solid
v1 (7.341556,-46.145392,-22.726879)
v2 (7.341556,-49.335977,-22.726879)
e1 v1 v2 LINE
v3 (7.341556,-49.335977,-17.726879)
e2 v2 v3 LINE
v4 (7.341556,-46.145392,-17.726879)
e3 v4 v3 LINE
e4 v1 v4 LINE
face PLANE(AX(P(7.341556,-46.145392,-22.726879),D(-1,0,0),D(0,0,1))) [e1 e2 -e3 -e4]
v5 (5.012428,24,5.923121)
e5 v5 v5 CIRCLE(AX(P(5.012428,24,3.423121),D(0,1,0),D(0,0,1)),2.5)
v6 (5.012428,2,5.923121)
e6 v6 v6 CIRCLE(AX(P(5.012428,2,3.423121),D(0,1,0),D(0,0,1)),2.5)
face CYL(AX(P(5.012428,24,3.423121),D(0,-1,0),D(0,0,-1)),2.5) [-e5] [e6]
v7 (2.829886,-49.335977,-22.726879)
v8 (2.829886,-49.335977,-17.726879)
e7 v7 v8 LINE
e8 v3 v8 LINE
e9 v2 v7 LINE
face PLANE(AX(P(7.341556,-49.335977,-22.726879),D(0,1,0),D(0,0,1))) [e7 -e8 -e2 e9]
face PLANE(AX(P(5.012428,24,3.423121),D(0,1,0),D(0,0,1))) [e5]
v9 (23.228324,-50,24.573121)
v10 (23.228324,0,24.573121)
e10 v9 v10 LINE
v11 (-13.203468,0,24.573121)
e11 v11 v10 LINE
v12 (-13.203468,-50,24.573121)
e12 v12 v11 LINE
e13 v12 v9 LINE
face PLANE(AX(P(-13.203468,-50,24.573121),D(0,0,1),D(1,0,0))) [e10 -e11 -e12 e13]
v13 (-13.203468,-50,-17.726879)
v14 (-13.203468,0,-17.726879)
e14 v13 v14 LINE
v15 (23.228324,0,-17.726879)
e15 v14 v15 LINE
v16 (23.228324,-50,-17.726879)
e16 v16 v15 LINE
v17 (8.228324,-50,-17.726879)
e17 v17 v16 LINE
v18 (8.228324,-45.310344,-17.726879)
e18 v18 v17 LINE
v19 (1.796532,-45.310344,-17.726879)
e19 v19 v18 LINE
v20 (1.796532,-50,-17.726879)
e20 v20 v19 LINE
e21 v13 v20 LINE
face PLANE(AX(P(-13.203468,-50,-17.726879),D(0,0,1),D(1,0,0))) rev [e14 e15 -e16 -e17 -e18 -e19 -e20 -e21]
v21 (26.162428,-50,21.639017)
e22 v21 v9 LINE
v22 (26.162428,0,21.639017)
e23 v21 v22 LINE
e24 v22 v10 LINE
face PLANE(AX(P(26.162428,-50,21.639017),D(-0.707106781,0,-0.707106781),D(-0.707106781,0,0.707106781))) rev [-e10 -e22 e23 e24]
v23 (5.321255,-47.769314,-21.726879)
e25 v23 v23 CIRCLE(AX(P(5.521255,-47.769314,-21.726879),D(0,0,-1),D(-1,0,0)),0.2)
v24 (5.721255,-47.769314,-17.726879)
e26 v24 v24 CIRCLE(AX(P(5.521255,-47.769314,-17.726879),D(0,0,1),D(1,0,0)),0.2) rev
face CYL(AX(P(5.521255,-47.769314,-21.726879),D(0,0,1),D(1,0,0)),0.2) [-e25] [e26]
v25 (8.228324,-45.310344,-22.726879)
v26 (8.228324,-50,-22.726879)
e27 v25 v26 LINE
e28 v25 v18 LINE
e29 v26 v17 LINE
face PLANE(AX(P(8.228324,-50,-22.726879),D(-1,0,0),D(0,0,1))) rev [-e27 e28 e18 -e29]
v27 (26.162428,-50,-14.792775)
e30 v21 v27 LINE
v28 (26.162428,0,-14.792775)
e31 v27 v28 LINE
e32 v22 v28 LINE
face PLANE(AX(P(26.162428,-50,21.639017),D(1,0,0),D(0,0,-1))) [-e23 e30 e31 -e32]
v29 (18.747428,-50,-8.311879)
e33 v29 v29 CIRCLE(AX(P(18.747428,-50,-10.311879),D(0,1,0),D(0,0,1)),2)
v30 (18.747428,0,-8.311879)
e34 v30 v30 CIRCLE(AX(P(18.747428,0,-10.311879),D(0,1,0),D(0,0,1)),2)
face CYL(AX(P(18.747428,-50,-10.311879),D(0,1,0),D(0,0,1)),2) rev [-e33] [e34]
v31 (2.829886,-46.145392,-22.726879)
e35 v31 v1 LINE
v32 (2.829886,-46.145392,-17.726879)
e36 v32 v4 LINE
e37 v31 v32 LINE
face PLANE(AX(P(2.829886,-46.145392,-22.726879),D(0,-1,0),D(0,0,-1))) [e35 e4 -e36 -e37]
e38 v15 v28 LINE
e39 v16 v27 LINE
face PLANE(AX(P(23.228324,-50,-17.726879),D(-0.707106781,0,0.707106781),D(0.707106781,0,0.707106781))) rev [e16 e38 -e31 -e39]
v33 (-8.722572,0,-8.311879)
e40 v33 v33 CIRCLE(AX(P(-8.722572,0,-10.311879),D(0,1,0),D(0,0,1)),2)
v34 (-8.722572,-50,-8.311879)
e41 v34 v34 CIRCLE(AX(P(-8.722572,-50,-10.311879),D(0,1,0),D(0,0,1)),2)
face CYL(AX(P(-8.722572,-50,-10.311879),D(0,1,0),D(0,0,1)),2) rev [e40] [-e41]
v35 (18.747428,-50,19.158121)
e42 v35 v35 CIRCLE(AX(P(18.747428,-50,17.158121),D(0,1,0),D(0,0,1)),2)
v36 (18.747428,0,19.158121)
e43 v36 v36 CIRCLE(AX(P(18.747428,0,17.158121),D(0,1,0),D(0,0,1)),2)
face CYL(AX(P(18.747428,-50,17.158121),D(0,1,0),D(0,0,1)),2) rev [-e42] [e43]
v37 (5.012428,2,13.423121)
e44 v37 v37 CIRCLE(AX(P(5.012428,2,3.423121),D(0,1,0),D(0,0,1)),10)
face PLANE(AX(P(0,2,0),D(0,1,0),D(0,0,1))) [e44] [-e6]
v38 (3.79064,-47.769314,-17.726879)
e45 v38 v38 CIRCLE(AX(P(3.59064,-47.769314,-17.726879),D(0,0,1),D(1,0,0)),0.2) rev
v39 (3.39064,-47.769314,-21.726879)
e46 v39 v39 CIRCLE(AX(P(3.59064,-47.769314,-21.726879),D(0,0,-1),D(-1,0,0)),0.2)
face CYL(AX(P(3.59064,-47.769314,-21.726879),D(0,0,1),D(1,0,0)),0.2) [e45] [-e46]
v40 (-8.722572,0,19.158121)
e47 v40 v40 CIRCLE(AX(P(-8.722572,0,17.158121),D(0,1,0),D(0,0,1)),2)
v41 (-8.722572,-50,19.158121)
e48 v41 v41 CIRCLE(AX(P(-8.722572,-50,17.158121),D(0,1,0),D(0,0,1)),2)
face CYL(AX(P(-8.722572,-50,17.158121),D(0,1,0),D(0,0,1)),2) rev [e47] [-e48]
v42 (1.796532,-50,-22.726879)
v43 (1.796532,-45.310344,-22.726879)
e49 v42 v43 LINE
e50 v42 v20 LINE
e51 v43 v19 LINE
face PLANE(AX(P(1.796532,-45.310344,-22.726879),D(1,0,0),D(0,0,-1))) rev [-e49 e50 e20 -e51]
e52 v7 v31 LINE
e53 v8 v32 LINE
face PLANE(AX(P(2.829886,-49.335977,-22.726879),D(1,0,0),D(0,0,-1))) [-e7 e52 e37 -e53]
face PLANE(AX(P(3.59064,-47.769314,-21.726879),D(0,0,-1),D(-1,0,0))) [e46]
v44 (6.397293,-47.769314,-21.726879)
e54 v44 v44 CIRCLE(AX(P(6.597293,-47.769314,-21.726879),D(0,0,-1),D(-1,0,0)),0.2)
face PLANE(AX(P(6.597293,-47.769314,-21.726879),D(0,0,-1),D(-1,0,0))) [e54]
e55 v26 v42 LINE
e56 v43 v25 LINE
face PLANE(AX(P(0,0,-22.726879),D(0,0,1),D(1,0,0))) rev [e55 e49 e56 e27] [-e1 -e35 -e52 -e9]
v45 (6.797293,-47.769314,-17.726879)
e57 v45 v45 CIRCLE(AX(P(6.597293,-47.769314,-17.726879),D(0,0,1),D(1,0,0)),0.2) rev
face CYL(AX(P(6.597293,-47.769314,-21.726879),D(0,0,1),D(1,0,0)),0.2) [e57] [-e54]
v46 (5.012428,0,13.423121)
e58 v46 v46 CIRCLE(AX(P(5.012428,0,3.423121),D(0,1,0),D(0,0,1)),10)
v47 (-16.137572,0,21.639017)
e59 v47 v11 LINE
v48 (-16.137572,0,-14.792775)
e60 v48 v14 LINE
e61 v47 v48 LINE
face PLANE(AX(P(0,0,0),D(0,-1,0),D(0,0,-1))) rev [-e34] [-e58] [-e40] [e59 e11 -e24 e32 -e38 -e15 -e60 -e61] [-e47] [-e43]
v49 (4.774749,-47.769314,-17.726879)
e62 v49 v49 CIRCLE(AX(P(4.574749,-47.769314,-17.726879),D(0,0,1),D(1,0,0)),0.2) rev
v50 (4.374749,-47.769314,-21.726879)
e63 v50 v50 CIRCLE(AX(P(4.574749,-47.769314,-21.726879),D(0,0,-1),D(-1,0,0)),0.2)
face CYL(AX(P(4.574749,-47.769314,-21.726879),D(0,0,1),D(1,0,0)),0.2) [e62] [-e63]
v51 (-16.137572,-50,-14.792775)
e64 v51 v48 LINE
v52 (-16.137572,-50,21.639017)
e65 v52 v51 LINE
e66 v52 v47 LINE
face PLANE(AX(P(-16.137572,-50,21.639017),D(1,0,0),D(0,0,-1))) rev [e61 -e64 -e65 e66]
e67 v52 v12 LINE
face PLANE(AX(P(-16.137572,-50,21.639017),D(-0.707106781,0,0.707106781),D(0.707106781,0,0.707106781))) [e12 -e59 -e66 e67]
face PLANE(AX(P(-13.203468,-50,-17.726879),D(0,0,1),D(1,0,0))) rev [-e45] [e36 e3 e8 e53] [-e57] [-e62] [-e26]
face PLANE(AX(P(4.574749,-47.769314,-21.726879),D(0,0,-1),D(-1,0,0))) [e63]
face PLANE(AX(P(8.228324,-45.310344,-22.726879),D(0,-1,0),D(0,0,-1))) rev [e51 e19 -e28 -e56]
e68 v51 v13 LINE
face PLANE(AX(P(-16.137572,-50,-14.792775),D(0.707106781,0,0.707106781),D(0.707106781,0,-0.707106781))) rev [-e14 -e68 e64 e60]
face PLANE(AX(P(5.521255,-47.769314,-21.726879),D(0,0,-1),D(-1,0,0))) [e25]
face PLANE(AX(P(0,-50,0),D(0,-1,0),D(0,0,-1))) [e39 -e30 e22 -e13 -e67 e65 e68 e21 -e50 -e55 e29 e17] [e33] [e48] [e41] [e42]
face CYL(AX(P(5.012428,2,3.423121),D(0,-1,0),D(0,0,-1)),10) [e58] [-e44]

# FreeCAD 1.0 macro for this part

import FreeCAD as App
import Part
import Sketcher

V = App.Vector
Q = App.Units.Quantity

doc = App.newDocument("Part")
body = doc.addObject("PartDesign::Body", "Body")

# Sketch on XZ plane
sketch1 = doc.addObject("Sketcher::SketchObject", "Sketch")
body.addObject(sketch1)
sketch1.AttachmentSupport = (doc.XZ_Plane, [""])
sketch1.MapMode = "FlatFace"
sketch1.addGeometry(Part.Circle(V(5.012428, 3.423121, 0), V(0, 0, 1), 10), False)
sketch1.addConstraint(Sketcher.Constraint("Diameter", 0, Q("20 mm")))
sketch1.addConstraint(Sketcher.Constraint("DistanceY", -1, 1, 0, 3, Q("3.423121 mm")))
sketch1.addConstraint(Sketcher.Constraint("DistanceX", -1, 1, 0, 3, Q("5.012428 mm")))
pad1 = doc.addObject("PartDesign::Pad", "Pad")
body.addObject(pad1)
pad1.Profile = sketch1
pad1.Length = 2
pad1.Reversed = True

# Sketch on XZ plane
sketch2 = doc.addObject("Sketcher::SketchObject", "Sketch001")
body.addObject(sketch2)
sketch2.AttachmentSupport = (doc.XZ_Plane, [""])
sketch2.MapMode = "FlatFace"
sketch2.addGeometry(Part.LineSegment(V(-16.137572, -14.792775, 0), V(-16.137572, 21.639017, 0)), False)
sketch2.addGeometry(Part.LineSegment(V(-16.137572, 21.639017, 0), V(-13.203468, 24.573121, 0)), False)
sketch2.addGeometry(Part.LineSegment(V(-13.203468, 24.573121, 0), V(23.228324, 24.573121, 0)), False)
sketch2.addGeometry(Part.LineSegment(V(23.228324, 24.573121, 0), V(26.162428, 21.639017, 0)), False)
sketch2.addGeometry(Part.LineSegment(V(26.162428, 21.639017, 0), V(26.162428, -14.792775, 0)), False)
sketch2.addGeometry(Part.LineSegment(V(26.162428, -14.792775, 0), V(23.228324, -17.726879, 0)), False)
sketch2.addGeometry(Part.LineSegment(V(23.228324, -17.726879, 0), V(-13.203468, -17.726879, 0)), False)
sketch2.addGeometry(Part.LineSegment(V(-13.203468, -17.726879, 0), V(-16.137572, -14.792775, 0)), False)
sketch2.addGeometry(Part.Circle(V(18.747428, 17.158121, 0), V(0, 0, 1), 2), False)
sketch2.addGeometry(Part.Circle(V(-8.722572, 17.158121, 0), V(0, 0, 1), 2), False)
sketch2.addGeometry(Part.Circle(V(18.747428, -10.311879, 0), V(0, 0, 1), 2), False)
sketch2.addGeometry(Part.Circle(V(-8.722572, -10.311879, 0), V(0, 0, 1), 2), False)
sketch2.addConstraint(Sketcher.Constraint("Coincident", 0, 2, 1, 1))
sketch2.addConstraint(Sketcher.Constraint("Coincident", 1, 2, 2, 1))
sketch2.addConstraint(Sketcher.Constraint("Coincident", 2, 2, 3, 1))
sketch2.addConstraint(Sketcher.Constraint("Coincident", 3, 2, 4, 1))
sketch2.addConstraint(Sketcher.Constraint("Coincident", 4, 2, 5, 1))
sketch2.addConstraint(Sketcher.Constraint("Coincident", 5, 2, 6, 1))
sketch2.addConstraint(Sketcher.Constraint("Coincident", 6, 2, 7, 1))
sketch2.addConstraint(Sketcher.Constraint("Coincident", 7, 2, 0, 1))
sketch2.addConstraint(Sketcher.Constraint("Vertical", 0))
sketch2.addConstraint(Sketcher.Constraint("Horizontal", 2))
sketch2.addConstraint(Sketcher.Constraint("Vertical", 4))
sketch2.addConstraint(Sketcher.Constraint("Horizontal", 6))
sketch2.addConstraint(Sketcher.Constraint("Equal", 8, 9))
sketch2.addConstraint(Sketcher.Constraint("Equal", 9, 10))
sketch2.addConstraint(Sketcher.Constraint("Equal", 10, 11))
sketch2.addConstraint(Sketcher.Constraint("Perpendicular", 1, 3))
sketch2.addConstraint(Sketcher.Constraint("Perpendicular", 3, 5))
sketch2.addConstraint(Sketcher.Constraint("Perpendicular", 5, 7))
sketch2.addConstraint(Sketcher.Constraint("Horizontal", 8, 3, 9, 3))
sketch2.addConstraint(Sketcher.Constraint("Horizontal", 10, 3, 11, 3))
sketch2.addConstraint(Sketcher.Constraint("Horizontal", 0, 2, 3, 2))
sketch2.addConstraint(Sketcher.Constraint("Horizontal", 4, 2, 7, 2))
sketch2.addConstraint(Sketcher.Constraint("Vertical", 8, 3, 10, 3))
sketch2.addConstraint(Sketcher.Constraint("Vertical", 9, 3, 11, 3))
sketch2.addConstraint(Sketcher.Constraint("Vertical", 2, 2, 5, 2))
sketch2.addConstraint(Sketcher.Constraint("Vertical", 1, 2, 6, 2))
sketch2.addConstraint(Sketcher.Constraint("Equal", 6, 0))
sketch2.addConstraint(Sketcher.Constraint("Diameter", 8, Q("4 mm")))
sketch2.addConstraint(Sketcher.Constraint("DistanceX", 9, 3, 8, 3, Q("27.47 mm")))
sketch2.addConstraint(Sketcher.Constraint("DistanceY", 10, 3, 8, 3, Q("27.47 mm")))
sketch2.addConstraint(Sketcher.Constraint("DistanceX", 0, 2, 9, 3, Q("7.415 mm")))
sketch2.addConstraint(Sketcher.Constraint("DistanceY", 9, 3, 1, 2, Q("7.415 mm")))
sketch2.addConstraint(Sketcher.Constraint("DistanceX", 8, 3, 3, 2, Q("7.415 mm")))
sketch2.addConstraint(Sketcher.Constraint("DistanceX", 2, 1, 2, 2, Q("36.431792 mm")))
sketch2.addConstraint(Sketcher.Constraint("DistanceY", -1, 1, 8, 3, Q("17.158121 mm")))
sketch2.addConstraint(Sketcher.Constraint("DistanceX", 1, 2, -1, 1, Q("13.203468 mm")))
pad2 = doc.addObject("PartDesign::Pad", "Pad001")
body.addObject(pad2)
pad2.Profile = sketch2
pad2.Length = 50

# Sketch on XY plane
sketch3 = doc.addObject("Sketcher::SketchObject", "Sketch002")
body.addObject(sketch3)
sketch3.AttachmentSupport = (doc.XY_Plane, [""])
sketch3.MapMode = "FlatFace"
sketch3.AttachmentOffset = App.Placement(V(0, 0, -17.726879), App.Rotation())
sketch3.addGeometry(Part.LineSegment(V(8.228324, -45.310344, 0), V(8.228324, -50, 0)), False)
sketch3.addGeometry(Part.LineSegment(V(8.228324, -50, 0), V(1.796532, -50, 0)), False)
sketch3.addGeometry(Part.LineSegment(V(1.796532, -50, 0), V(1.796532, -45.310344, 0)), False)
sketch3.addGeometry(Part.LineSegment(V(1.796532, -45.310344, 0), V(8.228324, -45.310344, 0)), False)
sketch3.addGeometry(Part.LineSegment(V(2.829886, -49.335977, 0), V(7.341556, -49.335977, 0)), False)
sketch3.addGeometry(Part.LineSegment(V(7.341556, -49.335977, 0), V(7.341556, -46.145392, 0)), False)
sketch3.addGeometry(Part.LineSegment(V(7.341556, -46.145392, 0), V(2.829886, -46.145392, 0)), False)
sketch3.addGeometry(Part.LineSegment(V(2.829886, -46.145392, 0), V(2.829886, -49.335977, 0)), False)
sketch3.addConstraint(Sketcher.Constraint("Coincident", 0, 2, 1, 1))
sketch3.addConstraint(Sketcher.Constraint("Coincident", 1, 2, 2, 1))
sketch3.addConstraint(Sketcher.Constraint("Coincident", 2, 2, 3, 1))
sketch3.addConstraint(Sketcher.Constraint("Coincident", 3, 2, 0, 1))
sketch3.addConstraint(Sketcher.Constraint("Coincident", 4, 2, 5, 1))
sketch3.addConstraint(Sketcher.Constraint("Coincident", 5, 2, 6, 1))
sketch3.addConstraint(Sketcher.Constraint("Coincident", 6, 2, 7, 1))
sketch3.addConstraint(Sketcher.Constraint("Coincident", 7, 2, 4, 1))
sketch3.addConstraint(Sketcher.Constraint("Vertical", 0))
sketch3.addConstraint(Sketcher.Constraint("Horizontal", 1))
sketch3.addConstraint(Sketcher.Constraint("Vertical", 2))
sketch3.addConstraint(Sketcher.Constraint("Horizontal", 3))
sketch3.addConstraint(Sketcher.Constraint("Horizontal", 4))
sketch3.addConstraint(Sketcher.Constraint("Vertical", 5))
sketch3.addConstraint(Sketcher.Constraint("Horizontal", 6))
sketch3.addConstraint(Sketcher.Constraint("Vertical", 7))
sketch3.addConstraint(Sketcher.Constraint("DistanceY", 0, 2, -1, 1, Q("50 mm")))
sketch3.addConstraint(Sketcher.Constraint("DistanceX", 1, 2, 1, 1, Q("6.431792 mm")))
sketch3.addConstraint(Sketcher.Constraint("DistanceX", 4, 1, 4, 2, Q("4.51167 mm")))
sketch3.addConstraint(Sketcher.Constraint("DistanceY", 0, 2, 0, 1, Q("4.689656 mm")))
sketch3.addConstraint(Sketcher.Constraint("DistanceY", 5, 1, 5, 2, Q("3.190585 mm")))
sketch3.addConstraint(Sketcher.Constraint("DistanceX", -1, 1, 1, 2, Q("1.796532 mm")))
sketch3.addConstraint(Sketcher.Constraint("DistanceX", 4, 2, 0, 2, Q("0.886768 mm")))
sketch3.addConstraint(Sketcher.Constraint("DistanceY", 5, 2, 3, 2, Q("0.835049 mm")))
pad3 = doc.addObject("PartDesign::Pad", "Pad002")
body.addObject(pad3)
pad3.Profile = sketch3
pad3.Length = 5
pad3.Reversed = True

# Sketch on XY plane
sketch4 = doc.addObject("Sketcher::SketchObject", "Sketch003")
body.addObject(sketch4)
sketch4.AttachmentSupport = (doc.XY_Plane, [""])
sketch4.MapMode = "FlatFace"
sketch4.AttachmentOffset = App.Placement(V(0, 0, -17.726879), App.Rotation())
sketch4.addGeometry(Part.Circle(V(6.597293, -47.769314, 0), V(0, 0, 1), 0.2), False)
sketch4.addGeometry(Part.Circle(V(5.521255, -47.769314, 0), V(0, 0, 1), 0.2), False)
sketch4.addGeometry(Part.Circle(V(4.574749, -47.769314, 0), V(0, 0, 1), 0.2), False)
sketch4.addGeometry(Part.Circle(V(3.59064, -47.769314, 0), V(0, 0, 1), 0.2), False)
sketch4.addConstraint(Sketcher.Constraint("Equal", 0, 1))
sketch4.addConstraint(Sketcher.Constraint("Equal", 1, 2))
sketch4.addConstraint(Sketcher.Constraint("Equal", 2, 3))
sketch4.addConstraint(Sketcher.Constraint("Horizontal", 0, 3, 1, 3))
sketch4.addConstraint(Sketcher.Constraint("Horizontal", 1, 3, 2, 3))
sketch4.addConstraint(Sketcher.Constraint("Horizontal", 2, 3, 3, 3))
sketch4.addConstraint(Sketcher.Constraint("Diameter", 0, Q("0.4 mm")))
sketch4.addConstraint(Sketcher.Constraint("DistanceX", -1, 1, 2, 3, Q("4.574749 mm")))
sketch4.addConstraint(Sketcher.Constraint("DistanceX", -1, 1, 3, 3, Q("3.59064 mm")))
sketch4.addConstraint(Sketcher.Constraint("DistanceX", 1, 3, 0, 3, Q("1.076038 mm")))
sketch4.addConstraint(Sketcher.Constraint("DistanceX", -1, 1, 0, 3, Q("6.597293 mm")))
sketch4.addConstraint(Sketcher.Constraint("DistanceY", 0, 3, -1, 1, Q("47.769314 mm")))
pad4 = doc.addObject("PartDesign::Pad", "Pad003")
body.addObject(pad4)
pad4.Profile = sketch4
pad4.Length = 4
pad4.Reversed = True

# Sketch on XZ plane
sketch5 = doc.addObject("Sketcher::SketchObject", "Sketch004")
body.addObject(sketch5)
sketch5.AttachmentSupport = (doc.XZ_Plane, [""])
sketch5.MapMode = "FlatFace"
sketch5.AttachmentOffset = App.Placement(V(0, 0, -2), App.Rotation())
sketch5.addGeometry(Part.Circle(V(5.012428, 3.423121, 0), V(0, 0, 1), 2.5), False)
sketch5.addConstraint(Sketcher.Constraint("Diameter", 0, Q("5 mm")))
sketch5.addConstraint(Sketcher.Constraint("DistanceY", -1, 1, 0, 3, Q("3.423121 mm")))
sketch5.addConstraint(Sketcher.Constraint("DistanceX", -1, 1, 0, 3, Q("5.012428 mm")))
pad5 = doc.addObject("PartDesign::Pad", "Pad004")
body.addObject(pad5)
pad5.Profile = sketch5
pad5.Length = 22
pad5.Reversed = True

doc.recompute()
